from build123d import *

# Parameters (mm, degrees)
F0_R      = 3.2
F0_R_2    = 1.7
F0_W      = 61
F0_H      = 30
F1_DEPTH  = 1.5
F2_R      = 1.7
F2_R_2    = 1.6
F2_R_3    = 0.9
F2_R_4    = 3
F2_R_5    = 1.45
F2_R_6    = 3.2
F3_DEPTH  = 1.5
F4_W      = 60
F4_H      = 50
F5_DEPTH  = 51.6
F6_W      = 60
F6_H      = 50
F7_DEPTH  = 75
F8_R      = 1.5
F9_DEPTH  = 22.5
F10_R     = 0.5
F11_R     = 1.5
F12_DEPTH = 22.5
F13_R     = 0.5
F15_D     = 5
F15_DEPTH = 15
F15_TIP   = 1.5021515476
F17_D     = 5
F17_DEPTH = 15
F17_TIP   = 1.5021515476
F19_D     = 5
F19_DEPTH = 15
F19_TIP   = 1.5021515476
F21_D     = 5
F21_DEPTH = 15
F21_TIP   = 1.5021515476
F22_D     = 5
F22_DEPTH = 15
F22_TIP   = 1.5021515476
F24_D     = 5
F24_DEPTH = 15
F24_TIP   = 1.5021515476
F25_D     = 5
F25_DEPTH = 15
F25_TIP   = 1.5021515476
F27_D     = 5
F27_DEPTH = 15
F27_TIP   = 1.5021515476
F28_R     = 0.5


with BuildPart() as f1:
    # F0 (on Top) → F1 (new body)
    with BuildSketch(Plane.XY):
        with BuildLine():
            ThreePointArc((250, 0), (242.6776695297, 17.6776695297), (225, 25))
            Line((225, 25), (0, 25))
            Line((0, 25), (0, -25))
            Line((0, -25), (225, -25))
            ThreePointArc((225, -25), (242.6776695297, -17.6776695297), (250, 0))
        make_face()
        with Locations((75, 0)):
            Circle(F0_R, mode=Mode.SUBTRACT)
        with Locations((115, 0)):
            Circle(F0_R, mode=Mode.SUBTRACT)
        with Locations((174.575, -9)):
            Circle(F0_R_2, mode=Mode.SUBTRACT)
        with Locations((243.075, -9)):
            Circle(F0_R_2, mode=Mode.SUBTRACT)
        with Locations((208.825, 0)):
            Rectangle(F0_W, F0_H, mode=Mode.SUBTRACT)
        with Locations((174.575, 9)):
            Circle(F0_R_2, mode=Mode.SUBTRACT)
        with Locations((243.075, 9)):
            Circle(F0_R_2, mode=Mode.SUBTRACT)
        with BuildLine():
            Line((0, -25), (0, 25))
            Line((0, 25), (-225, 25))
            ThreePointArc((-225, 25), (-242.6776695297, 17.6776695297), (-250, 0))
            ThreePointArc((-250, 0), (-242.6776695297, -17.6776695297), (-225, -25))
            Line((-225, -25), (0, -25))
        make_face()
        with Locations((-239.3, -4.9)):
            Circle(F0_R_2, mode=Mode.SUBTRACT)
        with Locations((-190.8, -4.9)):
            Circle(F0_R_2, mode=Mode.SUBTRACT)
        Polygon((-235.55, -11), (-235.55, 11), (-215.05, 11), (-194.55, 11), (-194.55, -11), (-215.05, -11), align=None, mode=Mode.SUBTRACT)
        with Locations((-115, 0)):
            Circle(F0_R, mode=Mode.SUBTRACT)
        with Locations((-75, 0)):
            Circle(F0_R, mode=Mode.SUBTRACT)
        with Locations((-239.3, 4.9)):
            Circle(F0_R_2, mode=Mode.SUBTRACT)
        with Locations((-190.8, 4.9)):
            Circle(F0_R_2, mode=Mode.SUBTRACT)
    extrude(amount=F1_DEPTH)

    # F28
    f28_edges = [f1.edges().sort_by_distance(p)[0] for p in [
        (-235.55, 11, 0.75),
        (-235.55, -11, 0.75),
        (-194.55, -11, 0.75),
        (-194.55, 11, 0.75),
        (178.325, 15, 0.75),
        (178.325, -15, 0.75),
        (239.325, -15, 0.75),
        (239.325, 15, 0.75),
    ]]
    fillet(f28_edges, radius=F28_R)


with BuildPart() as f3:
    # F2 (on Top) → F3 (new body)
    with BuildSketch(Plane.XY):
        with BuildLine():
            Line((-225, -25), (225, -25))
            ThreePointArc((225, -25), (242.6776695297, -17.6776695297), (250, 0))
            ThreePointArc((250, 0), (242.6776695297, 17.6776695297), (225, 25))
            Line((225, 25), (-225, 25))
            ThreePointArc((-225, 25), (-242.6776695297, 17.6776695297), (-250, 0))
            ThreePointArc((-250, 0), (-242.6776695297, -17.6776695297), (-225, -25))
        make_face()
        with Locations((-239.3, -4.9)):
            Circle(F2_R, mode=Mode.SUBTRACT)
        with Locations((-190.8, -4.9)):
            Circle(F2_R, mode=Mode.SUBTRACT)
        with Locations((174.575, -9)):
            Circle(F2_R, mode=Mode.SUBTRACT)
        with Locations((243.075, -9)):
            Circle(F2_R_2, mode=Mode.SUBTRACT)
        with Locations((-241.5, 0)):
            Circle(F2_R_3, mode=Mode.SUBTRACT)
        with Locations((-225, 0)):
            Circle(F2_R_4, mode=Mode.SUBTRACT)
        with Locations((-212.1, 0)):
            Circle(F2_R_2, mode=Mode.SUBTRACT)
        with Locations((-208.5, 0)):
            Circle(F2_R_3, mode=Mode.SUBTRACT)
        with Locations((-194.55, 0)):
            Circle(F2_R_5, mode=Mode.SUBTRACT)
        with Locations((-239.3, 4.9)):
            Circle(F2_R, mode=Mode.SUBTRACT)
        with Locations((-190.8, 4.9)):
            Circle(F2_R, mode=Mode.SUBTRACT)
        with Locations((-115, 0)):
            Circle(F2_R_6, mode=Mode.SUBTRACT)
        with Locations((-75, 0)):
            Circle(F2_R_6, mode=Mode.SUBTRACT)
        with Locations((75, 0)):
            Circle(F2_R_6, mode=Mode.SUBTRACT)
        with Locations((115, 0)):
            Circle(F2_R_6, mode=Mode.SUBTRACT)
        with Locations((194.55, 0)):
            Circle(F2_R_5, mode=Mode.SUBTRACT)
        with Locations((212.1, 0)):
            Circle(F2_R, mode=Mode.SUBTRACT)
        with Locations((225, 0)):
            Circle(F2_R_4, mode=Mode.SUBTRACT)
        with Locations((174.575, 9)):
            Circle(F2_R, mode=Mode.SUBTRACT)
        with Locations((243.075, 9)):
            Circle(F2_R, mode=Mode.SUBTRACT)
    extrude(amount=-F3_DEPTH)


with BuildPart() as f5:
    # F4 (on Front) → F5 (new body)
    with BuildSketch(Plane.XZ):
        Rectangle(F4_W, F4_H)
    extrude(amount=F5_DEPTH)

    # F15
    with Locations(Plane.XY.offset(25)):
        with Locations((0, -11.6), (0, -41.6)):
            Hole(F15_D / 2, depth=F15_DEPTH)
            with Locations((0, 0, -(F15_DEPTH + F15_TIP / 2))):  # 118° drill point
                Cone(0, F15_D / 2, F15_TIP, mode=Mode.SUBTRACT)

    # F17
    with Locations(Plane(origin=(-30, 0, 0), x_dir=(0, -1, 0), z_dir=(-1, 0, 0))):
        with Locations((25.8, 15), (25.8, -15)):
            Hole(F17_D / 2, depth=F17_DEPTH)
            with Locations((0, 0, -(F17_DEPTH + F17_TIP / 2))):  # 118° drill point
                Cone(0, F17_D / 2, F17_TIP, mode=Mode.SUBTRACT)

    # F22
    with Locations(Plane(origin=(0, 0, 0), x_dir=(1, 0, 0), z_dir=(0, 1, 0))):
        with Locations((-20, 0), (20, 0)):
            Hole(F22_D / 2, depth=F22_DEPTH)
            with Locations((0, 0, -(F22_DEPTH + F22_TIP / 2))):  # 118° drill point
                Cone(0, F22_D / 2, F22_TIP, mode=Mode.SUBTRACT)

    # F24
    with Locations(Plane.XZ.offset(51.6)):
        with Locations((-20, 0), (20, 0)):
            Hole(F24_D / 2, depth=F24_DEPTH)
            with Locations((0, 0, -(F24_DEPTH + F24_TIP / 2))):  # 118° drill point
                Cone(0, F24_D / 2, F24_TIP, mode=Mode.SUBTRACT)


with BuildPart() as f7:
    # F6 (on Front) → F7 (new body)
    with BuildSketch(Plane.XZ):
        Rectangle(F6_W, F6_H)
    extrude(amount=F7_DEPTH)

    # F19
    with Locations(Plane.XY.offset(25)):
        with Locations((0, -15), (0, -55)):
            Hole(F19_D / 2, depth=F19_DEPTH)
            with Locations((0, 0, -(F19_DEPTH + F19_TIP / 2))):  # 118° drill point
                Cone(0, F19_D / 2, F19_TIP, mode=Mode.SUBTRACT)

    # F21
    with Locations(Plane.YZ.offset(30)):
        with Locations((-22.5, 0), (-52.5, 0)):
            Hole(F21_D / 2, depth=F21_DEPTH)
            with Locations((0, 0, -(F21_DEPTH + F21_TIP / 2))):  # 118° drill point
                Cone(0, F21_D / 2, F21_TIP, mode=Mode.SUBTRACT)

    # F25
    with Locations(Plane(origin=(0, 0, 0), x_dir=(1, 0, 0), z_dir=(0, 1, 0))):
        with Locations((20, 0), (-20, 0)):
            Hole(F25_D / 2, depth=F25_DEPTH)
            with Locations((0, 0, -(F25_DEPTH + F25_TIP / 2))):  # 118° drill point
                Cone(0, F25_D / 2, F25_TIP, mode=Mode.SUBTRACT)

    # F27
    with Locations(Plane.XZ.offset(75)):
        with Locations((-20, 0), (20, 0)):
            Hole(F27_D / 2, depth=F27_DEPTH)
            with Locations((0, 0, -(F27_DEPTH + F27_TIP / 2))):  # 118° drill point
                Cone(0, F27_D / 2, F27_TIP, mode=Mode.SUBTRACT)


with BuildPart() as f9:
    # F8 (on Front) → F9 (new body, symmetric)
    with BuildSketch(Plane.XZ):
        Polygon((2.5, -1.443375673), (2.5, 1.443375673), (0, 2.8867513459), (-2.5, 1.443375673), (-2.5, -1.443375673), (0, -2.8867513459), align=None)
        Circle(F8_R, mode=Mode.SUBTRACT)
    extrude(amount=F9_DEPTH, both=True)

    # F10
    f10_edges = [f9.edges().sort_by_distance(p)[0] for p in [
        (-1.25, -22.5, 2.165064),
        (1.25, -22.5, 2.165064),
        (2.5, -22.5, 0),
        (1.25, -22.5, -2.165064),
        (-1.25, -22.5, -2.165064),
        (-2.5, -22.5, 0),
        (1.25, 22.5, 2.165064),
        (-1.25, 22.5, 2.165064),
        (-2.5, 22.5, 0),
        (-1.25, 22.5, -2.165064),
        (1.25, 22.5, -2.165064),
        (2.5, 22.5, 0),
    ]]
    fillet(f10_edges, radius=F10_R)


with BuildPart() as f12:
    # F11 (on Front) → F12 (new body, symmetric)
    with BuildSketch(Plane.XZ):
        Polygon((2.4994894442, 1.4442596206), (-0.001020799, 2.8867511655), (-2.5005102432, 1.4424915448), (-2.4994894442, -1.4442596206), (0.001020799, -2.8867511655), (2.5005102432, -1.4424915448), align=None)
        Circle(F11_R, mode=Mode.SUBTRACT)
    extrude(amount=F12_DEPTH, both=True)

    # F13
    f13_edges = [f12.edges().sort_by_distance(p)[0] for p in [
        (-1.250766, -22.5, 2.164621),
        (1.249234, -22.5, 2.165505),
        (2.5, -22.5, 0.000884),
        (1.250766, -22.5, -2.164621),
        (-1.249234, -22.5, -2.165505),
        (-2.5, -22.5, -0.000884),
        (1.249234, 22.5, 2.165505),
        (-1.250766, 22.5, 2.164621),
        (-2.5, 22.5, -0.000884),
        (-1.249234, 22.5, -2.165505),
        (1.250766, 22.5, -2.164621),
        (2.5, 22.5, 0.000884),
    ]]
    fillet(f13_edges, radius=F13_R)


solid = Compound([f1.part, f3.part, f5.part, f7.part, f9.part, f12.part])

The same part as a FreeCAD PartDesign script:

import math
import FreeCAD as App
import Part
import Sketcher
Q = App.Units.Quantity


def edges_at(feature, points):
    """Names of the edges that pass closest to the given points."""
    edges = feature.Shape.Edges
    near = lambda p: min(range(len(edges)), key=lambda i: edges[i].distToShape(Part.Vertex(*p))[0])
    return sorted({f"Edge{near(p) + 1}" for p in points})

doc = App.newDocument("Part")
params = doc.addObject("Spreadsheet::Sheet", "Params")
for row, (alias, value) in enumerate([
    ("sketch1_radius", "25 mm"),
    ("sketch1_diameter", "3.4 mm"),
    ("sketch1_diameter2", "6.4 mm"),
    ("sketch1_width", "450 mm"),
    ("sketch1_width2", "41 mm"),
    ("pad1_length", "1.5 mm"),
    ("fillet_radius", "0.5 mm"),
    ("sketch2_diameter", "6 mm"),
    ("sketch2_radius", "25 mm"),
    ("sketch2_diameter2", "3.4 mm"),
    ("sketch2_diameter3", "1.8 mm"),
    ("sketch2_diameter4", "3.2 mm"),
    ("pad2_length", "1.5 mm"),
    ("sketch3_width", "60 mm"),
    ("sketch3_height", "50 mm"),
    ("pad3_length", "51.6 mm"),
    ("sketch4_diameter", "5 mm"),
    ("hole_diameter", "5 mm"),
    ("hole_depth", "15 mm"),
    ("sketch5_diameter", "5 mm"),
    ("hole2_diameter", "5 mm"),
    ("hole2_depth", "15 mm"),
    ("sketch6_diameter", "5 mm"),
    ("hole3_diameter", "5 mm"),
    ("hole3_depth", "15 mm"),
    ("sketch7_diameter", "5 mm"),
    ("hole4_diameter", "5 mm"),
    ("hole4_depth", "15 mm"),
    ("sketch8_width", "60 mm"),
    ("sketch8_height", "50 mm"),
    ("pad4_length", "75 mm"),
    ("sketch9_diameter", "5 mm"),
    ("hole5_diameter", "5 mm"),
    ("hole5_depth", "15 mm"),
    ("sketch10_diameter", "5 mm"),
    ("hole6_diameter", "5 mm"),
    ("hole6_depth", "15 mm"),
    ("sketch11_diameter", "5 mm"),
    ("hole7_diameter", "5 mm"),
    ("hole7_depth", "15 mm"),
    ("sketch12_diameter", "5 mm"),
    ("hole8_diameter", "5 mm"),
    ("hole8_depth", "15 mm"),
    ("sketch13_diameter", "3 mm"),
    ("pad5_length", "45 mm"),
    ("fillet2_radius", "0.5 mm"),
    ("sketch14_diameter", "3 mm"),
    ("pad6_length", "45 mm"),
    ("fillet3_radius", "0.5 mm"),
], start=1):
    params.set(f"A{row}", alias)
    params.set(f"B{row}", "=" + value)
    params.setAlias(f"B{row}", alias)

body = doc.addObject("PartDesign::Body", "Body")

# Sketch on XY plane
sketch1 = body.newObject("Sketcher::SketchObject", "Sketch")
sketch1.AttachmentSupport = (doc.getObject("XY_Plane"), [""])
sketch1.MapMode = "FlatFace"
sketch1.addGeometry(Part.ArcOfCircle(Part.Circle(App.Vector(225, 0, 0), App.Vector(0, 0, 1), 25), math.radians(0), math.radians(90)), False)
sketch1.addGeometry(Part.LineSegment(App.Vector(225, 25, 0), App.Vector(-225, 25, 0)), False)
sketch1.addGeometry(Part.ArcOfCircle(Part.Circle(App.Vector(-225, 0, 0), App.Vector(0, 0, 1), 25), math.radians(90), math.radians(180)), False)
sketch1.addGeometry(Part.ArcOfCircle(Part.Circle(App.Vector(-225, 0, 0), App.Vector(0, 0, 1), 25), math.radians(180), math.radians(270)), False)
sketch1.addGeometry(Part.LineSegment(App.Vector(-225, -25, 0), App.Vector(225, -25, 0)), False)
sketch1.addGeometry(Part.ArcOfCircle(Part.Circle(App.Vector(225, 0, 0), App.Vector(0, 0, 1), 25), math.radians(-90), math.radians(0)), False)
sketch1.addGeometry(Part.Circle(App.Vector(-239.3, -4.9, 0), App.Vector(0, 0, 1), 1.7), False)
sketch1.addGeometry(Part.Circle(App.Vector(-190.8, -4.9, 0), App.Vector(0, 0, 1), 1.7), False)
sketch1.addGeometry(Part.Circle(App.Vector(174.6, -9, 0), App.Vector(0, 0, 1), 1.7), False)
sketch1.addGeometry(Part.Circle(App.Vector(243.1, -9, 0), App.Vector(0, 0, 1), 1.7), False)
sketch1.addGeometry(Part.LineSegment(App.Vector(-194.6, -11, 0), App.Vector(-235.6, -11, 0)), False)
sketch1.addGeometry(Part.LineSegment(App.Vector(-235.6, -11, 0), App.Vector(-235.6, 11, 0)), False)
sketch1.addGeometry(Part.LineSegment(App.Vector(-235.6, 11, 0), App.Vector(-194.6, 11, 0)), False)
sketch1.addGeometry(Part.LineSegment(App.Vector(-194.6, 11, 0), App.Vector(-194.6, -11, 0)), False)
sketch1.addGeometry(Part.Circle(App.Vector(-239.3, 4.9, 0), App.Vector(0, 0, 1), 1.7), False)
sketch1.addGeometry(Part.Circle(App.Vector(-190.8, 4.9, 0), App.Vector(0, 0, 1), 1.7), False)
sketch1.addGeometry(Part.Circle(App.Vector(-115, 0, 0), App.Vector(0, 0, 1), 3.2), False)
sketch1.addGeometry(Part.Circle(App.Vector(-75, 0, 0), App.Vector(0, 0, 1), 3.2), False)
sketch1.addGeometry(Part.Circle(App.Vector(75, 0, 0), App.Vector(0, 0, 1), 3.2), False)
sketch1.addGeometry(Part.Circle(App.Vector(115, 0, 0), App.Vector(0, 0, 1), 3.2), False)
sketch1.addGeometry(Part.LineSegment(App.Vector(239.3, -15, 0), App.Vector(178.3, -15, 0)), False)
sketch1.addGeometry(Part.LineSegment(App.Vector(178.3, -15, 0), App.Vector(178.3, 15, 0)), False)
sketch1.addGeometry(Part.LineSegment(App.Vector(178.3, 15, 0), App.Vector(239.3, 15, 0)), False)
sketch1.addGeometry(Part.LineSegment(App.Vector(239.3, 15, 0), App.Vector(239.3, -15, 0)), False)
sketch1.addGeometry(Part.Circle(App.Vector(174.6, 9, 0), App.Vector(0, 0, 1), 1.7), False)
sketch1.addGeometry(Part.Circle(App.Vector(243.1, 9, 0), App.Vector(0, 0, 1), 1.7), False)
sketch1.addConstraint(Sketcher.Constraint("Tangent", 0, 2, 1, 1))
sketch1.addConstraint(Sketcher.Constraint("Tangent", 1, 2, 2, 1))
sketch1.addConstraint(Sketcher.Constraint("Tangent", 2, 2, 3, 1))
sketch1.addConstraint(Sketcher.Constraint("Tangent", 3, 2, 4, 1))
sketch1.addConstraint(Sketcher.Constraint("Tangent", 4, 2, 5, 1))
sketch1.addConstraint(Sketcher.Constraint("Tangent", 5, 2, 0, 1))
sketch1.addConstraint(Sketcher.Constraint("Coincident", 10, 2, 11, 1))
sketch1.addConstraint(Sketcher.Constraint("Coincident", 11, 2, 12, 1))
sketch1.addConstraint(Sketcher.Constraint("Coincident", 12, 2, 13, 1))
sketch1.addConstraint(Sketcher.Constraint("Coincident", 13, 2, 10, 1))
sketch1.addConstraint(Sketcher.Constraint("Coincident", 20, 2, 21, 1))
sketch1.addConstraint(Sketcher.Constraint("Coincident", 21, 2, 22, 1))
sketch1.addConstraint(Sketcher.Constraint("Coincident", 22, 2, 23, 1))
sketch1.addConstraint(Sketcher.Constraint("Coincident", 23, 2, 20, 1))
sketch1.addConstraint(Sketcher.Constraint("Horizontal", 1))
sketch1.addConstraint(Sketcher.Constraint("Horizontal", 4))
sketch1.addConstraint(Sketcher.Constraint("Horizontal", 10))
sketch1.addConstraint(Sketcher.Constraint("Vertical", 11))
sketch1.addConstraint(Sketcher.Constraint("Horizontal", 12))
sketch1.addConstraint(Sketcher.Constraint("Vertical", 13))
sketch1.addConstraint(Sketcher.Constraint("Horizontal", 20))
sketch1.addConstraint(Sketcher.Constraint("Vertical", 21))
sketch1.addConstraint(Sketcher.Constraint("Horizontal", 22))
sketch1.addConstraint(Sketcher.Constraint("Vertical", 23))
sketch1.addConstraint(Sketcher.Constraint("Equal", 0, 2))
sketch1.addConstraint(Sketcher.Constraint("Equal", 2, 3))
sketch1.addConstraint(Sketcher.Constraint("Equal", 6, 7))
sketch1.addConstraint(Sketcher.Constraint("Equal", 7, 8))
sketch1.addConstraint(Sketcher.Constraint("Equal", 8, 9))
sketch1.addConstraint(Sketcher.Constraint("Equal", 9, 14))
sketch1.addConstraint(Sketcher.Constraint("Equal", 14, 15))
sketch1.addConstraint(Sketcher.Constraint("Equal", 16, 17))
sketch1.addConstraint(Sketcher.Constraint("Equal", 17, 18))
sketch1.addConstraint(Sketcher.Constraint("Equal", 18, 19))
sketch1.addConstraint(Sketcher.Constraint("Equal", 15, 24))
sketch1.addConstraint(Sketcher.Constraint("Equal", 24, 25))
sketch1.addConstraint(Sketcher.Constraint("Symmetric", 0, 3, 2, 3, -1, 1))
sketch1.addConstraint(Sketcher.Constraint("Symmetric", 17, 3, 18, 3, -1, 1))
sketch1.addConstraint(Sketcher.Constraint("Symmetric", 16, 3, 19, 3, -1, 1))
sketch1.addConstraint(Sketcher.Constraint("Symmetric", 6, 3, 14, 3, -1))
sketch1.addConstraint(Sketcher.Constraint("Symmetric", 7, 3, 15, 3, -1))
sketch1.addConstraint(Sketcher.Constraint("Symmetric", 8, 3, 24, 3, -1))
sketch1.addConstraint(Sketcher.Constraint("Symmetric", 9, 3, 25, 3, -1))
sketch1.addConstraint(Sketcher.Constraint("PointOnObject", 16, 3, -1))
sketch1.addConstraint(Sketcher.Constraint("PointOnObject", 17, 3, -1))
sketch1.addConstraint(Sketcher.Constraint("PointOnObject", 2, 2, -1))
sketch1.addConstraint(Sketcher.Constraint("PointOnObject", 5, 2, -1))
sketch1.addConstraint(Sketcher.Constraint("Horizontal", 6, 3, 7, 3))
sketch1.addConstraint(Sketcher.Constraint("Horizontal", 8, 3, 9, 3))
sketch1.addConstraint(Sketcher.Constraint("Radius", 0, 25.0))
sketch1.addConstraint(Sketcher.Constraint("Diameter", 6, 3.4))
sketch1.addConstraint(Sketcher.Constraint("Diameter", 16, 6.4))
sketch1.addConstraint(Sketcher.Constraint("DistanceX", 1, 2, 1, 1, 450.0))
sketch1.addConstraint(Sketcher.Constraint("DistanceX", 10, 2, 10, 1, 41.0))
sketch1.addConstraint(Sketcher.Constraint("DistanceX", 20, 2, 20, 1, 61.0))
sketch1.addConstraint(Sketcher.Constraint("DistanceY", 11, 1, 11, 2, 22.0))
sketch1.addConstraint(Sketcher.Constraint("DistanceY", 21, 1, 21, 2, 30.0))
sketch1.addConstraint(Sketcher.Constraint("DistanceY", 8, 3, -1, 1, 9.0))
sketch1.addConstraint(Sketcher.Constraint("DistanceX", 16, 3, -1, 1, 115.0))
sketch1.addConstraint(Sketcher.Constraint("DistanceX", 17, 3, -1, 1, 75.0))
sketch1.addConstraint(Sketcher.Constraint("DistanceY", 10, 2, -1, 1, 11.0))
sketch1.addConstraint(Sketcher.Constraint("DistanceY", 20, 2, -1, 1, 15.0))
sketch1.addConstraint(Sketcher.Constraint("DistanceX", 6, 3, -1, 1, 239.3))
sketch1.addConstraint(Sketcher.Constraint("DistanceY", 6, 3, -1, 1, 4.9))
sketch1.addConstraint(Sketcher.Constraint("DistanceX", 7, 3, -1, 1, 190.8))
sketch1.addConstraint(Sketcher.Constraint("DistanceX", 8, 3, 9, 3, 68.5))
sketch1.addConstraint(Sketcher.Constraint("DistanceX", 10, 2, -1, 1, 235.55))
sketch1.addConstraint(Sketcher.Constraint("DistanceX", 8, 3, 20, 2, 3.75))
sketch1.addConstraint(Sketcher.Constraint("DistanceX", -1, 1, 8, 3, 174.575))
sketch1.setExpression("Constraints[49]", "Params.sketch1_radius")
sketch1.setExpression("Constraints[50]", "Params.sketch1_diameter")
sketch1.setExpression("Constraints[51]", "Params.sketch1_diameter2")
sketch1.setExpression("Constraints[52]", "Params.sketch1_width")
sketch1.setExpression("Constraints[53]", "Params.sketch1_width2")
pad1 = body.newObject("PartDesign::Pad", "Pad")
pad1.Profile = sketch1
pad1.setExpression("Length", "Params.pad1_length")
doc.recompute()

fillet = body.newObject("PartDesign::Fillet", "Fillet")
fillet.Base = (pad1, edges_at(pad1, [
    (-235.55, 11, 0.75),
    (-235.55, -11, 0.75),
    (-194.55, -11, 0.75),
    (-194.55, 11, 0.75),
    (178.325, 15, 0.75),
    (178.325, -15, 0.75),
    (239.325, -15, 0.75),
    (239.325, 15, 0.75),
]))
fillet.setExpression("Radius", "Params.fillet_radius")
body2 = doc.addObject("PartDesign::Body", "Body001")

# Sketch on XY plane
sketch2 = body2.newObject("Sketcher::SketchObject", "Sketch001")
sketch2.AttachmentSupport = (doc.getObject("XY_Plane001"), [""])
sketch2.MapMode = "FlatFace"
sketch2.addGeometry(Part.LineSegment(App.Vector(-225, -25, 0), App.Vector(225, -25, 0)), False)
sketch2.addGeometry(Part.ArcOfCircle(Part.Circle(App.Vector(225, 0, 0), App.Vector(0, 0, 1), 25), math.radians(-90), math.radians(0)), False)
sketch2.addGeometry(Part.ArcOfCircle(Part.Circle(App.Vector(225, 0, 0), App.Vector(0, 0, 1), 25), math.radians(0), math.radians(90)), False)
sketch2.addGeometry(Part.LineSegment(App.Vector(225, 25, 0), App.Vector(-225, 25, 0)), False)
sketch2.addGeometry(Part.ArcOfCircle(Part.Circle(App.Vector(-225, 0, 0), App.Vector(0, 0, 1), 25), math.radians(90), math.radians(180)), False)
sketch2.addGeometry(Part.ArcOfCircle(Part.Circle(App.Vector(-225, 0, 0), App.Vector(0, 0, 1), 25), math.radians(180), math.radians(270)), False)
sketch2.addGeometry(Part.Circle(App.Vector(-239.3, -4.9, 0), App.Vector(0, 0, 1), 1.7), False)
sketch2.addGeometry(Part.Circle(App.Vector(-190.8, -4.9, 0), App.Vector(0, 0, 1), 1.7), False)
sketch2.addGeometry(Part.Circle(App.Vector(-241.5, 0, 0), App.Vector(0, 0, 1), 0.9), False)
sketch2.addGeometry(Part.Circle(App.Vector(-225, 0, 0), App.Vector(0, 0, 1), 3), False)
sketch2.addGeometry(Part.Circle(App.Vector(-212.1, 0, 0), App.Vector(0, 0, 1), 1.6), False)
sketch2.addGeometry(Part.Circle(App.Vector(-208.5, 0, 0), App.Vector(0, 0, 1), 0.9), False)
sketch2.addGeometry(Part.Circle(App.Vector(-194.6, 0, 0), App.Vector(0, 0, 1), 1.4), False)
sketch2.addGeometry(Part.Circle(App.Vector(-115, 0, 0), App.Vector(0, 0, 1), 3.2), False)
sketch2.addGeometry(Part.Circle(App.Vector(-75, 0, 0), App.Vector(0, 0, 1), 3.2), False)
sketch2.addGeometry(Part.Circle(App.Vector(174.6, -9, 0), App.Vector(0, 0, 1), 1.7), False)
sketch2.addGeometry(Part.Circle(App.Vector(243.1, -9, 0), App.Vector(0, 0, 1), 1.6), False)
sketch2.addGeometry(Part.Circle(App.Vector(75, 0, 0), App.Vector(0, 0, 1), 3.2), False)
sketch2.addGeometry(Part.Circle(App.Vector(115, 0, 0), App.Vector(0, 0, 1), 3.2), False)
sketch2.addGeometry(Part.Circle(App.Vector(194.6, 0, 0), App.Vector(0, 0, 1), 1.4), False)
sketch2.addGeometry(Part.Circle(App.Vector(212.1, 0, 0), App.Vector(0, 0, 1), 1.7), False)
sketch2.addGeometry(Part.Circle(App.Vector(225, 0, 0), App.Vector(0, 0, 1), 3), False)
sketch2.addGeometry(Part.Circle(App.Vector(-239.3, 4.9, 0), App.Vector(0, 0, 1), 1.7), False)
sketch2.addGeometry(Part.Circle(App.Vector(-190.8, 4.9, 0), App.Vector(0, 0, 1), 1.7), False)
sketch2.addGeometry(Part.Circle(App.Vector(174.6, 9, 0), App.Vector(0, 0, 1), 1.7), False)
sketch2.addGeometry(Part.Circle(App.Vector(243.1, 9, 0), App.Vector(0, 0, 1), 1.7), False)
sketch2.addConstraint(Sketcher.Constraint("Tangent", 0, 2, 1, 1))
sketch2.addConstraint(Sketcher.Constraint("Tangent", 1, 2, 2, 1))
sketch2.addConstraint(Sketcher.Constraint("Tangent", 2, 2, 3, 1))
sketch2.addConstraint(Sketcher.Constraint("Tangent", 3, 2, 4, 1))
sketch2.addConstraint(Sketcher.Constraint("Tangent", 4, 2, 5, 1))
sketch2.addConstraint(Sketcher.Constraint("Tangent", 5, 2, 0, 1))
sketch2.addConstraint(Sketcher.Constraint("Horizontal", 0))
sketch2.addConstraint(Sketcher.Constraint("Horizontal", 3))
sketch2.addConstraint(Sketcher.Constraint("Coincident", 9, 3, 4, 3))
sketch2.addConstraint(Sketcher.Constraint("Coincident", 21, 3, 1, 3))
sketch2.addConstraint(Sketcher.Constraint("Equal", 1, 2))
sketch2.addConstraint(Sketcher.Constraint("Equal", 2, 4))
sketch2.addConstraint(Sketcher.Constraint("Equal", 6, 7))
sketch2.addConstraint(Sketcher.Constraint("Equal", 8, 11))
sketch2.addConstraint(Sketcher.Constraint("Equal", 13, 14))
sketch2.addConstraint(Sketcher.Constraint("Equal", 7, 15))
sketch2.addConstraint(Sketcher.Constraint("Equal", 10, 16))
sketch2.addConstraint(Sketcher.Constraint("Equal", 14, 17))
sketch2.addConstraint(Sketcher.Constraint("Equal", 17, 18))
sketch2.addConstraint(Sketcher.Constraint("Equal", 12, 19))
sketch2.addConstraint(Sketcher.Constraint("Equal", 15, 20))
sketch2.addConstraint(Sketcher.Constraint("Equal", 9, 21))
sketch2.addConstraint(Sketcher.Constraint("Equal", 20, 22))
sketch2.addConstraint(Sketcher.Constraint("Equal", 22, 23))
sketch2.addConstraint(Sketcher.Constraint("Equal", 23, 24))
sketch2.addConstraint(Sketcher.Constraint("Equal", 24, 25))
sketch2.addConstraint(Sketcher.Constraint("Symmetric", 1, 3, 4, 3, -1, 1))
sketch2.addConstraint(Sketcher.Constraint("Symmetric", 14, 3, 17, 3, -1, 1))
sketch2.addConstraint(Sketcher.Constraint("Symmetric", 13, 3, 18, 3, -1, 1))
sketch2.addConstraint(Sketcher.Constraint("Symmetric", 12, 3, 19, 3, -1, 1))
sketch2.addConstraint(Sketcher.Constraint("Symmetric", 10, 3, 20, 3, -1, 1))
sketch2.addConstraint(Sketcher.Constraint("Symmetric", 6, 3, 22, 3, -1))
sketch2.addConstraint(Sketcher.Constraint("Symmetric", 7, 3, 23, 3, -1))
sketch2.addConstraint(Sketcher.Constraint("Symmetric", 15, 3, 24, 3, -1))
sketch2.addConstraint(Sketcher.Constraint("Symmetric", 16, 3, 25, 3, -1))
sketch2.addConstraint(Sketcher.Constraint("PointOnObject", 8, 3, -1))
sketch2.addConstraint(Sketcher.Constraint("PointOnObject", 10, 3, -1))
sketch2.addConstraint(Sketcher.Constraint("PointOnObject", 11, 3, -1))
sketch2.addConstraint(Sketcher.Constraint("PointOnObject", 12, 3, -1))
sketch2.addConstraint(Sketcher.Constraint("PointOnObject", 13, 3, -1))
sketch2.addConstraint(Sketcher.Constraint("PointOnObject", 14, 3, -1))
sketch2.addConstraint(Sketcher.Constraint("PointOnObject", 1, 2, -1))
sketch2.addConstraint(Sketcher.Constraint("PointOnObject", 4, 2, -1))
sketch2.addConstraint(Sketcher.Constraint("Horizontal", 6, 3, 7, 3))
sketch2.addConstraint(Sketcher.Constraint("Horizontal", 15, 3, 16, 3))
sketch2.addConstraint(Sketcher.Constraint("Diameter", 9, 6.0))
sketch2.addConstraint(Sketcher.Constraint("Radius", 1, 25.0))
sketch2.addConstraint(Sketcher.Constraint("Diameter", 6, 3.4))
sketch2.addConstraint(Sketcher.Constraint("Diameter", 8, 1.8))
sketch2.addConstraint(Sketcher.Constraint("Diameter", 10, 3.2))
sketch2.addConstraint(Sketcher.Constraint("Diameter", 12, 2.9))
sketch2.addConstraint(Sketcher.Constraint("Diameter", 13, 6.4))
sketch2.addConstraint(Sketcher.Constraint("DistanceX", 0, 1, 0, 2, 450.0))
sketch2.addConstraint(Sketcher.Constraint("DistanceX", 13, 3, -1, 1, 115.0))
sketch2.addConstraint(Sketcher.Constraint("DistanceX", 14, 3, -1, 1, 75.0))
sketch2.addConstraint(Sketcher.Constraint("DistanceY", 15, 3, -1, 1, 9.0))
sketch2.addConstraint(Sketcher.Constraint("DistanceX", 6, 3, -1, 1, 239.3))
sketch2.addConstraint(Sketcher.Constraint("DistanceY", 6, 3, -1, 1, 4.9))
sketch2.addConstraint(Sketcher.Constraint("DistanceX", 7, 3, -1, 1, 190.8))
sketch2.addConstraint(Sketcher.Constraint("DistanceX", 8, 3, -1, 1, 241.5))
sketch2.addConstraint(Sketcher.Constraint("DistanceX", 10, 3, -1, 1, 212.1))
sketch2.addConstraint(Sketcher.Constraint("DistanceX", 11, 3, -1, 1, 208.5))
sketch2.addConstraint(Sketcher.Constraint("DistanceX", 15, 3, 16, 3, 68.5))
sketch2.addConstraint(Sketcher.Constraint("DistanceX", 12, 3, -1, 1, 194.55))
sketch2.addConstraint(Sketcher.Constraint("DistanceX", -1, 1, 15, 3, 174.575))
sketch2.setExpression("Constraints[45]", "Params.sketch2_diameter")
sketch2.setExpression("Constraints[46]", "Params.sketch2_radius")
sketch2.setExpression("Constraints[47]", "Params.sketch2_diameter2")
sketch2.setExpression("Constraints[48]", "Params.sketch2_diameter3")
sketch2.setExpression("Constraints[49]", "Params.sketch2_diameter4")
pad2 = body2.newObject("PartDesign::Pad", "Pad001")
pad2.Profile = sketch2
pad2.setExpression("Length", "Params.pad2_length")
pad2.Reversed = True
body3 = doc.addObject("PartDesign::Body", "Body002")

# Sketch on XZ plane
sketch3 = body3.newObject("Sketcher::SketchObject", "Sketch002")
sketch3.AttachmentSupport = (doc.getObject("XZ_Plane002"), [""])
sketch3.MapMode = "FlatFace"
sketch3.addGeometry(Part.LineSegment(App.Vector(-30, 25, 0), App.Vector(-30, -25, 0)), False)
sketch3.addGeometry(Part.LineSegment(App.Vector(-30, -25, 0), App.Vector(30, -25, 0)), False)
sketch3.addGeometry(Part.LineSegment(App.Vector(30, -25, 0), App.Vector(30, 25, 0)), False)
sketch3.addGeometry(Part.LineSegment(App.Vector(30, 25, 0), App.Vector(-30, 25, 0)), False)
sketch3.addConstraint(Sketcher.Constraint("Coincident", 0, 2, 1, 1))
sketch3.addConstraint(Sketcher.Constraint("Coincident", 1, 2, 2, 1))
sketch3.addConstraint(Sketcher.Constraint("Coincident", 2, 2, 3, 1))
sketch3.addConstraint(Sketcher.Constraint("Coincident", 3, 2, 0, 1))
sketch3.addConstraint(Sketcher.Constraint("Vertical", 0))
sketch3.addConstraint(Sketcher.Constraint("Horizontal", 1))
sketch3.addConstraint(Sketcher.Constraint("Vertical", 2))
sketch3.addConstraint(Sketcher.Constraint("Horizontal", 3))
sketch3.addConstraint(Sketcher.Constraint("Symmetric", 0, 2, 2, 2, -1, 1))
sketch3.addConstraint(Sketcher.Constraint("DistanceX", 1, 1, 1, 2, 60.0))
sketch3.addConstraint(Sketcher.Constraint("DistanceY", 0, 2, 0, 1, 50.0))
sketch3.setExpression("Constraints[9]", "Params.sketch3_width")
sketch3.setExpression("Constraints[10]", "Params.sketch3_height")
pad3 = body3.newObject("PartDesign::Pad", "Pad002")
pad3.Profile = sketch3
pad3.setExpression("Length", "Params.pad3_length")

# Sketch on XY plane
sketch4 = body3.newObject("Sketcher::SketchObject", "Sketch003")
sketch4.AttachmentSupport = (doc.getObject("XY_Plane002"), [""])
sketch4.MapMode = "FlatFace"
sketch4.AttachmentOffset = App.Placement(App.Vector(0, 0, 25), App.Rotation())
sketch4.addGeometry(Part.Circle(App.Vector(0, -11.6, 0), App.Vector(0, 0, 1), 2.5), False)
sketch4.addGeometry(Part.Circle(App.Vector(0, -41.6, 0), App.Vector(0, 0, 1), 2.5), False)
sketch4.addConstraint(Sketcher.Constraint("Equal", 0, 1))
sketch4.addConstraint(Sketcher.Constraint("PointOnObject", 0, 3, -2))
sketch4.addConstraint(Sketcher.Constraint("PointOnObject", 1, 3, -2))
sketch4.addConstraint(Sketcher.Constraint("Diameter", 0, 5.0))
sketch4.addConstraint(Sketcher.Constraint("DistanceY", 1, 3, 0, 3, 30.0))
sketch4.addConstraint(Sketcher.Constraint("DistanceY", 0, 3, -1, 1, 11.6))
sketch4.setExpression("Constraints[3]", "Params.sketch4_diameter")
doc.recompute()
hole = body3.newObject("PartDesign::Hole", "Hole")
hole.Profile = sketch4
hole.ThreadType = "None"
hole.setExpression("Diameter", "Params.hole_diameter")
hole.DepthType = "Dimension"
hole.setExpression("Depth", "Params.hole_depth")
hole.DrillPoint = "Angled"
hole.DrillPointAngle = 118

# Sketch on YZ plane
sketch5 = body3.newObject("Sketcher::SketchObject", "Sketch004")
sketch5.AttachmentSupport = (doc.getObject("YZ_Plane002"), [""])
sketch5.MapMode = "FlatFace"
sketch5.AttachmentOffset = App.Placement(App.Vector(0, 0, -30), App.Rotation())
sketch5.addGeometry(Part.Circle(App.Vector(-25.8, 15, 0), App.Vector(0, 0, 1), 2.5), False)
sketch5.addGeometry(Part.Circle(App.Vector(-25.8, -15, 0), App.Vector(0, 0, 1), 2.5), False)
sketch5.addConstraint(Sketcher.Constraint("Equal", 0, 1))
sketch5.addConstraint(Sketcher.Constraint("Symmetric", 0, 3, 1, 3, -1))
sketch5.addConstraint(Sketcher.Constraint("Diameter", 0, 5.0))
sketch5.addConstraint(Sketcher.Constraint("DistanceY", -1, 1, 0, 3, 15.0))
sketch5.addConstraint(Sketcher.Constraint("DistanceX", 0, 3, -1, 1, 25.8))
sketch5.setExpression("Constraints[2]", "Params.sketch5_diameter")
doc.recompute()
hole2 = body3.newObject("PartDesign::Hole", "Hole001")
hole2.Profile = sketch5
hole2.ThreadType = "None"
hole2.setExpression("Diameter", "Params.hole2_diameter")
hole2.DepthType = "Dimension"
hole2.setExpression("Depth", "Params.hole2_depth")
hole2.DrillPoint = "Angled"
hole2.DrillPointAngle = 118
hole2.Reversed = True

# Sketch on XZ plane
sketch6 = body3.newObject("Sketcher::SketchObject", "Sketch005")
sketch6.AttachmentSupport = (doc.getObject("XZ_Plane002"), [""])
sketch6.MapMode = "FlatFace"
sketch6.addGeometry(Part.Circle(App.Vector(-20, 0, 0), App.Vector(0, 0, 1), 2.5), False)
sketch6.addGeometry(Part.Circle(App.Vector(20, 0, 0), App.Vector(0, 0, 1), 2.5), False)
sketch6.addConstraint(Sketcher.Constraint("Equal", 0, 1))
sketch6.addConstraint(Sketcher.Constraint("Symmetric", 0, 3, 1, 3, -1, 1))
sketch6.addConstraint(Sketcher.Constraint("PointOnObject", 0, 3, -1))
sketch6.addConstraint(Sketcher.Constraint("Diameter", 0, 5.0))
sketch6.addConstraint(Sketcher.Constraint("DistanceX", 0, 3, -1, 1, 20.0))
sketch6.setExpression("Constraints[3]", "Params.sketch6_diameter")
doc.recompute()
hole3 = body3.newObject("PartDesign::Hole", "Hole002")
hole3.Profile = sketch6
hole3.ThreadType = "None"
hole3.setExpression("Diameter", "Params.hole3_diameter")
hole3.DepthType = "Dimension"
hole3.setExpression("Depth", "Params.hole3_depth")
hole3.DrillPoint = "Angled"
hole3.DrillPointAngle = 118
hole3.Reversed = True

# Sketch on XZ plane
sketch7 = body3.newObject("Sketcher::SketchObject", "Sketch006")
sketch7.AttachmentSupport = (doc.getObject("XZ_Plane002"), [""])
sketch7.MapMode = "FlatFace"
sketch7.AttachmentOffset = App.Placement(App.Vector(0, 0, 51.6), App.Rotation())
sketch7.addGeometry(Part.Circle(App.Vector(-20, 0, 0), App.Vector(0, 0, 1), 2.5), False)
sketch7.addGeometry(Part.Circle(App.Vector(20, 0, 0), App.Vector(0, 0, 1), 2.5), False)
sketch7.addConstraint(Sketcher.Constraint("Equal", 0, 1))
sketch7.addConstraint(Sketcher.Constraint("Symmetric", 0, 3, 1, 3, -1, 1))
sketch7.addConstraint(Sketcher.Constraint("PointOnObject", 0, 3, -1))
sketch7.addConstraint(Sketcher.Constraint("Diameter", 0, 5.0))
sketch7.addConstraint(Sketcher.Constraint("DistanceX", 0, 3, -1, 1, 20.0))
sketch7.setExpression("Constraints[3]", "Params.sketch7_diameter")
doc.recompute()
hole4 = body3.newObject("PartDesign::Hole", "Hole003")
hole4.Profile = sketch7
hole4.ThreadType = "None"
hole4.setExpression("Diameter", "Params.hole4_diameter")
hole4.DepthType = "Dimension"
hole4.setExpression("Depth", "Params.hole4_depth")
hole4.DrillPoint = "Angled"
hole4.DrillPointAngle = 118
body4 = doc.addObject("PartDesign::Body", "Body003")

# Sketch on XZ plane
sketch8 = body4.newObject("Sketcher::SketchObject", "Sketch007")
sketch8.AttachmentSupport = (doc.getObject("XZ_Plane003"), [""])
sketch8.MapMode = "FlatFace"
sketch8.addGeometry(Part.LineSegment(App.Vector(-30, 25, 0), App.Vector(-30, -25, 0)), False)
sketch8.addGeometry(Part.LineSegment(App.Vector(-30, -25, 0), App.Vector(30, -25, 0)), False)
sketch8.addGeometry(Part.LineSegment(App.Vector(30, -25, 0), App.Vector(30, 25, 0)), False)
sketch8.addGeometry(Part.LineSegment(App.Vector(30, 25, 0), App.Vector(-30, 25, 0)), False)
sketch8.addConstraint(Sketcher.Constraint("Coincident", 0, 2, 1, 1))
sketch8.addConstraint(Sketcher.Constraint("Coincident", 1, 2, 2, 1))
sketch8.addConstraint(Sketcher.Constraint("Coincident", 2, 2, 3, 1))
sketch8.addConstraint(Sketcher.Constraint("Coincident", 3, 2, 0, 1))
sketch8.addConstraint(Sketcher.Constraint("Vertical", 0))
sketch8.addConstraint(Sketcher.Constraint("Horizontal", 1))
sketch8.addConstraint(Sketcher.Constraint("Vertical", 2))
sketch8.addConstraint(Sketcher.Constraint("Horizontal", 3))
sketch8.addConstraint(Sketcher.Constraint("Symmetric", 0, 2, 2, 2, -1, 1))
sketch8.addConstraint(Sketcher.Constraint("DistanceX", 1, 1, 1, 2, 60.0))
sketch8.addConstraint(Sketcher.Constraint("DistanceY", 0, 2, 0, 1, 50.0))
sketch8.setExpression("Constraints[9]", "Params.sketch8_width")
sketch8.setExpression("Constraints[10]", "Params.sketch8_height")
pad4 = body4.newObject("PartDesign::Pad", "Pad003")
pad4.Profile = sketch8
pad4.setExpression("Length", "Params.pad4_length")

# Sketch on XY plane
sketch9 = body4.newObject("Sketcher::SketchObject", "Sketch008")
sketch9.AttachmentSupport = (doc.getObject("XY_Plane003"), [""])
sketch9.MapMode = "FlatFace"
sketch9.AttachmentOffset = App.Placement(App.Vector(0, 0, 25), App.Rotation())
sketch9.addGeometry(Part.Circle(App.Vector(0, -15, 0), App.Vector(0, 0, 1), 2.5), False)
sketch9.addGeometry(Part.Circle(App.Vector(0, -55, 0), App.Vector(0, 0, 1), 2.5), False)
sketch9.addConstraint(Sketcher.Constraint("Equal", 0, 1))
sketch9.addConstraint(Sketcher.Constraint("PointOnObject", 0, 3, -2))
sketch9.addConstraint(Sketcher.Constraint("PointOnObject", 1, 3, -2))
sketch9.addConstraint(Sketcher.Constraint("Diameter", 0, 5.0))
sketch9.addConstraint(Sketcher.Constraint("DistanceY", 0, 3, -1, 1, 15.0))
sketch9.addConstraint(Sketcher.Constraint("DistanceY", 1, 3, -1, 1, 55.0))
sketch9.setExpression("Constraints[3]", "Params.sketch9_diameter")
doc.recompute()
hole5 = body4.newObject("PartDesign::Hole", "Hole004")
hole5.Profile = sketch9
hole5.ThreadType = "None"
hole5.setExpression("Diameter", "Params.hole5_diameter")
hole5.DepthType = "Dimension"
hole5.setExpression("Depth", "Params.hole5_depth")
hole5.DrillPoint = "Angled"
hole5.DrillPointAngle = 118

# Sketch on YZ plane
sketch10 = body4.newObject("Sketcher::SketchObject", "Sketch009")
sketch10.AttachmentSupport = (doc.getObject("YZ_Plane003"), [""])
sketch10.MapMode = "FlatFace"
sketch10.AttachmentOffset = App.Placement(App.Vector(0, 0, 30), App.Rotation())
sketch10.addGeometry(Part.Circle(App.Vector(-22.5, 0, 0), App.Vector(0, 0, 1), 2.5), False)
sketch10.addGeometry(Part.Circle(App.Vector(-52.5, 0, 0), App.Vector(0, 0, 1), 2.5), False)
sketch10.addConstraint(Sketcher.Constraint("Equal", 0, 1))
sketch10.addConstraint(Sketcher.Constraint("PointOnObject", 0, 3, -1))
sketch10.addConstraint(Sketcher.Constraint("PointOnObject", 1, 3, -1))
sketch10.addConstraint(Sketcher.Constraint("Diameter", 0, 5.0))
sketch10.addConstraint(Sketcher.Constraint("DistanceX", 1, 3, 0, 3, 30.0))
sketch10.addConstraint(Sketcher.Constraint("DistanceX", 0, 3, -1, 1, 22.5))
sketch10.setExpression("Constraints[3]", "Params.sketch10_diameter")
doc.recompute()
hole6 = body4.newObject("PartDesign::Hole", "Hole005")
hole6.Profile = sketch10
hole6.ThreadType = "None"
hole6.setExpression("Diameter", "Params.hole6_diameter")
hole6.DepthType = "Dimension"
hole6.setExpression("Depth", "Params.hole6_depth")
hole6.DrillPoint = "Angled"
hole6.DrillPointAngle = 118

# Sketch on XZ plane
sketch11 = body4.newObject("Sketcher::SketchObject", "Sketch010")
sketch11.AttachmentSupport = (doc.getObject("XZ_Plane003"), [""])
sketch11.MapMode = "FlatFace"
sketch11.addGeometry(Part.Circle(App.Vector(20, 0, 0), App.Vector(0, 0, 1), 2.5), False)
sketch11.addGeometry(Part.Circle(App.Vector(-20, 0, 0), App.Vector(0, 0, 1), 2.5), False)
sketch11.addConstraint(Sketcher.Constraint("Equal", 0, 1))
sketch11.addConstraint(Sketcher.Constraint("Symmetric", 0, 3, 1, 3, -1, 1))
sketch11.addConstraint(Sketcher.Constraint("PointOnObject", 0, 3, -1))
sketch11.addConstraint(Sketcher.Constraint("Diameter", 0, 5.0))
sketch11.addConstraint(Sketcher.Constraint("DistanceX", -1, 1, 0, 3, 20.0))
sketch11.setExpression("Constraints[3]", "Params.sketch11_diameter")
doc.recompute()
hole7 = body4.newObject("PartDesign::Hole", "Hole006")
hole7.Profile = sketch11
hole7.ThreadType = "None"
hole7.setExpression("Diameter", "Params.hole7_diameter")
hole7.DepthType = "Dimension"
hole7.setExpression("Depth", "Params.hole7_depth")
hole7.DrillPoint = "Angled"
hole7.DrillPointAngle = 118
hole7.Reversed = True

# Sketch on XZ plane
sketch12 = body4.newObject("Sketcher::SketchObject", "Sketch011")
sketch12.AttachmentSupport = (doc.getObject("XZ_Plane003"), [""])
sketch12.MapMode = "FlatFace"
sketch12.AttachmentOffset = App.Placement(App.Vector(0, 0, 75), App.Rotation())
sketch12.addGeometry(Part.Circle(App.Vector(-20, 0, 0), App.Vector(0, 0, 1), 2.5), False)
sketch12.addGeometry(Part.Circle(App.Vector(20, 0, 0), App.Vector(0, 0, 1), 2.5), False)
sketch12.addConstraint(Sketcher.Constraint("Equal", 0, 1))
sketch12.addConstraint(Sketcher.Constraint("Symmetric", 0, 3, 1, 3, -1, 1))
sketch12.addConstraint(Sketcher.Constraint("PointOnObject", 0, 3, -1))
sketch12.addConstraint(Sketcher.Constraint("Diameter", 0, 5.0))
sketch12.addConstraint(Sketcher.Constraint("DistanceX", 0, 3, -1, 1, 20.0))
sketch12.setExpression("Constraints[3]", "Params.sketch12_diameter")
doc.recompute()
hole8 = body4.newObject("PartDesign::Hole", "Hole007")
hole8.Profile = sketch12
hole8.ThreadType = "None"
hole8.setExpression("Diameter", "Params.hole8_diameter")
hole8.DepthType = "Dimension"
hole8.setExpression("Depth", "Params.hole8_depth")
hole8.DrillPoint = "Angled"
hole8.DrillPointAngle = 118
body5 = doc.addObject("PartDesign::Body", "Body004")

# Sketch on XZ plane
sketch13 = body5.newObject("Sketcher::SketchObject", "Sketch012")
sketch13.AttachmentSupport = (doc.getObject("XZ_Plane004"), [""])
sketch13.MapMode = "FlatFace"
sketch13.addGeometry(Part.LineSegment(App.Vector(2.5, -1.4, 0), App.Vector(2.5, 1.4, 0)), False)
sketch13.addGeometry(Part.LineSegment(App.Vector(2.5, 1.4, 0), App.Vector(0, 2.9, 0)), False)
sketch13.addGeometry(Part.LineSegment(App.Vector(0, 2.9, 0), App.Vector(-2.5, 1.4, 0)), False)
sketch13.addGeometry(Part.LineSegment(App.Vector(-2.5, 1.4, 0), App.Vector(-2.5, -1.4, 0)), False)
sketch13.addGeometry(Part.LineSegment(App.Vector(-2.5, -1.4, 0), App.Vector(0, -2.9, 0)), False)
sketch13.addGeometry(Part.LineSegment(App.Vector(0, -2.9, 0), App.Vector(2.5, -1.4, 0)), False)
sketch13.addGeometry(Part.Circle(App.Vector(0, 0, 0), App.Vector(0, 0, 1), 1.5), False)
sketch13.addConstraint(Sketcher.Constraint("Coincident", 0, 2, 1, 1))
sketch13.addConstraint(Sketcher.Constraint("Coincident", 1, 2, 2, 1))
sketch13.addConstraint(Sketcher.Constraint("Coincident", 2, 2, 3, 1))
sketch13.addConstraint(Sketcher.Constraint("Coincident", 3, 2, 4, 1))
sketch13.addConstraint(Sketcher.Constraint("Coincident", 4, 2, 5, 1))
sketch13.addConstraint(Sketcher.Constraint("Coincident", 5, 2, 0, 1))
sketch13.addConstraint(Sketcher.Constraint("Vertical", 0))
sketch13.addConstraint(Sketcher.Constraint("Vertical", 3))
sketch13.addConstraint(Sketcher.Constraint("Coincident", 6, 3, -1, 1))
sketch13.addConstraint(Sketcher.Constraint("Symmetric", 0, 2, 3, 2, -1, 1))
sketch13.addConstraint(Sketcher.Constraint("Symmetric", 1, 2, 4, 2, -1, 1))
sketch13.addConstraint(Sketcher.Constraint("PointOnObject", 1, 2, -2))
sketch13.addConstraint(Sketcher.Constraint("Parallel", 2, 5))
sketch13.addConstraint(Sketcher.Constraint("Horizontal", 0, 2, 2, 2))
sketch13.addConstraint(Sketcher.Constraint("Diameter", 6, 3.0))
sketch13.addConstraint(Sketcher.Constraint("Angle", 1, Q("150 deg")))
sketch13.addConstraint(Sketcher.Constraint("DistanceX", 2, 2, 0, 2, 5.0))
sketch13.addConstraint(Sketcher.Constraint("DistanceY", 0, 1, 0, 2, 2.886751))
sketch13.setExpression("Constraints[14]", "Params.sketch13_diameter")
pad5 = body5.newObject("PartDesign::Pad", "Pad004")
pad5.Profile = sketch13
pad5.setExpression("Length", "Params.pad5_length")
pad5.Midplane = True
doc.recompute()

fillet2 = body5.newObject("PartDesign::Fillet", "Fillet001")
fillet2.Base = (pad5, edges_at(pad5, [
    (-1.25, -22.5, 2.165),
    (1.25, -22.5, 2.165),
    (2.5, -22.5, 0),
    (1.25, -22.5, -2.165),
    (-1.25, -22.5, -2.165),
    (-2.5, -22.5, 0),
    (1.25, 22.5, 2.165),
    (-1.25, 22.5, 2.165),
    (-2.5, 22.5, 0),
    (-1.25, 22.5, -2.165),
    (1.25, 22.5, -2.165),
    (2.5, 22.5, 0),
]))
fillet2.setExpression("Radius", "Params.fillet2_radius")
body6 = doc.addObject("PartDesign::Body", "Body005")

# Sketch on XZ plane
sketch14 = body6.newObject("Sketcher::SketchObject", "Sketch013")
sketch14.AttachmentSupport = (doc.getObject("XZ_Plane005"), [""])
sketch14.MapMode = "FlatFace"
sketch14.addGeometry(Part.LineSegment(App.Vector(2.5, 1.4, 0), App.Vector(0, 2.9, 0)), False)
sketch14.addGeometry(Part.LineSegment(App.Vector(0, 2.9, 0), App.Vector(-2.5, 1.4, 0)), False)
sketch14.addGeometry(Part.LineSegment(App.Vector(-2.5, 1.4, 0), App.Vector(-2.5, -1.4, 0)), False)
sketch14.addGeometry(Part.LineSegment(App.Vector(-2.5, -1.4, 0), App.Vector(0, -2.9, 0)), False)
sketch14.addGeometry(Part.LineSegment(App.Vector(0, -2.9, 0), App.Vector(2.5, -1.4, 0)), False)
sketch14.addGeometry(Part.LineSegment(App.Vector(2.5, -1.4, 0), App.Vector(2.5, 1.4, 0)), False)
sketch14.addGeometry(Part.Circle(App.Vector(0, 0, 0), App.Vector(0, 0, 1), 1.5), False)
sketch14.addConstraint(Sketcher.Constraint("Coincident", 0, 2, 1, 1))
sketch14.addConstraint(Sketcher.Constraint("Coincident", 1, 2, 2, 1))
sketch14.addConstraint(Sketcher.Constraint("Coincident", 2, 2, 3, 1))
sketch14.addConstraint(Sketcher.Constraint("Coincident", 3, 2, 4, 1))
sketch14.addConstraint(Sketcher.Constraint("Coincident", 4, 2, 5, 1))
sketch14.addConstraint(Sketcher.Constraint("Coincident", 5, 2, 0, 1))
sketch14.addConstraint(Sketcher.Constraint("Coincident", 6, 3, -1, 1))
sketch14.addConstraint(Sketcher.Constraint("Symmetric", 0, 2, 3, 2, -1, 1))
sketch14.addConstraint(Sketcher.Constraint("Symmetric", 1, 2, 4, 2, -1, 1))
sketch14.addConstraint(Sketcher.Constraint("Symmetric", 2, 2, 5, 2, -1, 1))
sketch14.addConstraint(Sketcher.Constraint("Equal", 0, 1))
sketch14.addConstraint(Sketcher.Constraint("Equal", 1, 2))
sketch14.addConstraint(Sketcher.Constraint("Diameter", 6, 3.0))
sketch14.addConstraint(Sketcher.Constraint("DistanceX", 2, 2, 4, 2, 5.0))
sketch14.addConstraint(Sketcher.Constraint("Distance", 0, 2.886751))
sketch14.addConstraint(Sketcher.Constraint("DistanceX", 0, 2, -1, 1, 0.001021))
sketch14.addConstraint(Sketcher.Constraint("DistanceX", 1, 2, -1, 1, 2.50051))
sketch14.setExpression("Constraints[12]", "Params.sketch14_diameter")
pad6 = body6.newObject("PartDesign::Pad", "Pad005")
pad6.Profile = sketch14
pad6.setExpression("Length", "Params.pad6_length")
pad6.Midplane = True
doc.recompute()

fillet3 = body6.newObject("PartDesign::Fillet", "Fillet002")
fillet3.Base = (pad6, edges_at(pad6, [
    (-1.251, -22.5, 2.165),
    (1.249, -22.5, 2.166),
    (2.5, -22.5, 0.001),
    (1.251, -22.5, -2.165),
    (-1.249, -22.5, -2.166),
    (-2.5, -22.5, -0.001),
    (1.249, 22.5, 2.166),
    (-1.251, 22.5, 2.165),
    (-2.5, 22.5, -0.001),
    (-1.249, 22.5, -2.166),
    (1.251, 22.5, -2.165),
    (2.5, 22.5, 0.001),
]))
fillet3.setExpression("Radius", "Params.fillet3_radius")

doc.recompute()
